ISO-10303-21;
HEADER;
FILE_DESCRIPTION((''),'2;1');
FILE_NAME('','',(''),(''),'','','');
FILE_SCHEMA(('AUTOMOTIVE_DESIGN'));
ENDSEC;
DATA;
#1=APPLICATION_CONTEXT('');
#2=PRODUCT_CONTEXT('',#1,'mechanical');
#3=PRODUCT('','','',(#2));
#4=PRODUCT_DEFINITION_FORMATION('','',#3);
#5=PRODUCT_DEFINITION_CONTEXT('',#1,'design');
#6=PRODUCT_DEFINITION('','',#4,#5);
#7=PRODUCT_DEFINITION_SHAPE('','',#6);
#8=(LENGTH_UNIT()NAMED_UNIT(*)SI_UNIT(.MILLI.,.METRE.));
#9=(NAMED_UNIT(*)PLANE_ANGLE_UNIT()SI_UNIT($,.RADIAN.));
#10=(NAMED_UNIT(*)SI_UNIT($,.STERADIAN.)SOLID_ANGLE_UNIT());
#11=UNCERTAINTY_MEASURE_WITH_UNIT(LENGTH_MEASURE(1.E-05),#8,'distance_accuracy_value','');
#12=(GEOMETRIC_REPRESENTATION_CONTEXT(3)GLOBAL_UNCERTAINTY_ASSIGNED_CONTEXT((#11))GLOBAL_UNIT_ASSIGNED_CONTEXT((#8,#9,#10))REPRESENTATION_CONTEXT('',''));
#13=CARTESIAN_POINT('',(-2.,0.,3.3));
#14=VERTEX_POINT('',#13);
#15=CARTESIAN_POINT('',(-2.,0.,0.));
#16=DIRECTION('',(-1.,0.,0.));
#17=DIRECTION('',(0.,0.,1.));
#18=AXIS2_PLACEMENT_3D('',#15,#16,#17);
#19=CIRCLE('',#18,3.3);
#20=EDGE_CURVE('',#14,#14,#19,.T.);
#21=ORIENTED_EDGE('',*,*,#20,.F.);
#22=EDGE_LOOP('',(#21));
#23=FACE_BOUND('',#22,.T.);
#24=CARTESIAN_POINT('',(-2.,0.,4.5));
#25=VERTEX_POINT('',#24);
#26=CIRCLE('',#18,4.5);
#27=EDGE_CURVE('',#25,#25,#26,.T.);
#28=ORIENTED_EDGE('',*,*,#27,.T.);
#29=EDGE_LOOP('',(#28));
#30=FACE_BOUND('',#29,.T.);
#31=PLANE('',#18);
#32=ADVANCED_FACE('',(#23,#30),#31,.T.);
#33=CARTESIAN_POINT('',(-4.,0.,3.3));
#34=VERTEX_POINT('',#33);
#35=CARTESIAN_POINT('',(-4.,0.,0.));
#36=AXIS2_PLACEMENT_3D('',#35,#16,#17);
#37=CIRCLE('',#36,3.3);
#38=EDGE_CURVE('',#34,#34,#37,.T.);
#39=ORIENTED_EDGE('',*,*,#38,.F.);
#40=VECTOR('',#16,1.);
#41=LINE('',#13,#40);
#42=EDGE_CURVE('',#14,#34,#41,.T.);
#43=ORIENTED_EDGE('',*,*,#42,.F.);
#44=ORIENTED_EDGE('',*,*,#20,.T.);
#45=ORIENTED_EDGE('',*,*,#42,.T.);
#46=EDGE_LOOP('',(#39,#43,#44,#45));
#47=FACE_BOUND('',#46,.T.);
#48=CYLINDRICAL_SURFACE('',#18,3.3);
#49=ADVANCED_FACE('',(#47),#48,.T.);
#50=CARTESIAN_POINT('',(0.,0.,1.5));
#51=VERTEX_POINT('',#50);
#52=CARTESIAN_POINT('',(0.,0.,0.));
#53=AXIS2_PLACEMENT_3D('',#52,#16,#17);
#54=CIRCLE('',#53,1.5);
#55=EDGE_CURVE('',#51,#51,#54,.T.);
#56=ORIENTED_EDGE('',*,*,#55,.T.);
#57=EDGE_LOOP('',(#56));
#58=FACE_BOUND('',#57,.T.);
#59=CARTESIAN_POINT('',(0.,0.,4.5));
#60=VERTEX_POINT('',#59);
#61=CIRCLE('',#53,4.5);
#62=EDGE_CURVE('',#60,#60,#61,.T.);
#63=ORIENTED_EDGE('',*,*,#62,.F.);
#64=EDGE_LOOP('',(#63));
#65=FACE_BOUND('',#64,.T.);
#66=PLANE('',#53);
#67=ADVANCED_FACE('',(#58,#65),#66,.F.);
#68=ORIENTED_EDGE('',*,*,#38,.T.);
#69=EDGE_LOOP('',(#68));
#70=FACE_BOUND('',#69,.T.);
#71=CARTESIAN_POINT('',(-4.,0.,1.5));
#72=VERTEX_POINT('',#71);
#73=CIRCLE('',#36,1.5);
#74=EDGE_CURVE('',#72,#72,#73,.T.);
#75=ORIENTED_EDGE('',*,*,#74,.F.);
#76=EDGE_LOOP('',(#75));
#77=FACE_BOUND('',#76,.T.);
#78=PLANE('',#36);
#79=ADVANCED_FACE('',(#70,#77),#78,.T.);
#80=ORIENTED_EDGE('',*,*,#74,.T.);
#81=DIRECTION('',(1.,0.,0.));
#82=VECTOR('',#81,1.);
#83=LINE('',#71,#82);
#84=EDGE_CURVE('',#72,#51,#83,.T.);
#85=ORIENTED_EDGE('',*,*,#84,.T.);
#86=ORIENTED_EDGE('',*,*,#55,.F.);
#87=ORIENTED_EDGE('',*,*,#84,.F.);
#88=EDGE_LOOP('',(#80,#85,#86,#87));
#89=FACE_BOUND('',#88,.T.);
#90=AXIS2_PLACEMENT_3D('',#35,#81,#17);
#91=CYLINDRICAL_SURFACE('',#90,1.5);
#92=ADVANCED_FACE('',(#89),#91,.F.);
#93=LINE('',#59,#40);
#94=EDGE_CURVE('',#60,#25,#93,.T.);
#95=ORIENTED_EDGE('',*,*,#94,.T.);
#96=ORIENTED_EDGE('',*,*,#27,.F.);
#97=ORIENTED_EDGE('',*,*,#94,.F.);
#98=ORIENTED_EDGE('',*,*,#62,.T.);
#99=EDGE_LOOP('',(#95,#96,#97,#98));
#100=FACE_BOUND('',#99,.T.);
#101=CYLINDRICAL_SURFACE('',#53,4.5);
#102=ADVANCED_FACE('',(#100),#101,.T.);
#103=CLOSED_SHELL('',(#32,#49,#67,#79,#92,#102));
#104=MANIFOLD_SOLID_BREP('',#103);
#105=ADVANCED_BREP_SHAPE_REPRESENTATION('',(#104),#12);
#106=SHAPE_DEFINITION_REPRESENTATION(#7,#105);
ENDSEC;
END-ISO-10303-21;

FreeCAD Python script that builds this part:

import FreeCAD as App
import Part
import Sketcher
from FreeCAD import Vector

doc = App.newDocument("Part")
body = doc.addObject("PartDesign::Body", "Body")

sketch1 = body.newObject("Sketcher::SketchObject", "Sketch")
sketch1.AttachmentSupport = (doc.getObject("XZ_Plane"), [""])
sketch1.MapMode = "FlatFace"
sketch1.addGeometry([
    Part.LineSegment(Vector(0, 4.5, 0), Vector(0, 1.5, 0)),
    Part.LineSegment(Vector(0, 1.5, 0), Vector(-4, 1.5, 0)),
    Part.LineSegment(Vector(-4, 1.5, 0), Vector(-4, 3.3, 0)),
    Part.LineSegment(Vector(-4, 3.3, 0), Vector(-2, 3.3, 0)),
    Part.LineSegment(Vector(-2, 3.3, 0), Vector(-2, 4.5, 0)),
    Part.LineSegment(Vector(-2, 4.5, 0), Vector(0, 4.5, 0)),
], False)
sketch1.addConstraint([
    Sketcher.Constraint("Coincident", 0, 2, 1, 1),
    Sketcher.Constraint("Coincident", 1, 2, 2, 1),
    Sketcher.Constraint("Coincident", 2, 2, 3, 1),
    Sketcher.Constraint("Coincident", 3, 2, 4, 1),
    Sketcher.Constraint("Coincident", 4, 2, 5, 1),
    Sketcher.Constraint("Coincident", 5, 2, 0, 1),
    Sketcher.Constraint("Vertical", 0),
    Sketcher.Constraint("Horizontal", 1),
    Sketcher.Constraint("Vertical", 2),
    Sketcher.Constraint("Horizontal", 3),
    Sketcher.Constraint("Vertical", 4),
    Sketcher.Constraint("Horizontal", 5),
    Sketcher.Constraint("PointOnObject", 0, 2, -2),
    Sketcher.Constraint("Equal", 3, 5),
    Sketcher.Constraint("DistanceX", 1, 2, 1, 1, 4.0),
    Sketcher.Constraint("DistanceY", -1, 1, 0, 2, 1.5),
    Sketcher.Constraint("DistanceY", -1, 1, 2, 2, 3.3),
    Sketcher.Constraint("DistanceY", -1, 1, 4, 2, 4.5),
])
revolution = body.newObject("PartDesign::Revolution", "Revolution")
revolution.Profile = sketch1
revolution.ReferenceAxis = (sketch1, ["H_Axis"])
revolution.Angle = 360

doc.recompute()
